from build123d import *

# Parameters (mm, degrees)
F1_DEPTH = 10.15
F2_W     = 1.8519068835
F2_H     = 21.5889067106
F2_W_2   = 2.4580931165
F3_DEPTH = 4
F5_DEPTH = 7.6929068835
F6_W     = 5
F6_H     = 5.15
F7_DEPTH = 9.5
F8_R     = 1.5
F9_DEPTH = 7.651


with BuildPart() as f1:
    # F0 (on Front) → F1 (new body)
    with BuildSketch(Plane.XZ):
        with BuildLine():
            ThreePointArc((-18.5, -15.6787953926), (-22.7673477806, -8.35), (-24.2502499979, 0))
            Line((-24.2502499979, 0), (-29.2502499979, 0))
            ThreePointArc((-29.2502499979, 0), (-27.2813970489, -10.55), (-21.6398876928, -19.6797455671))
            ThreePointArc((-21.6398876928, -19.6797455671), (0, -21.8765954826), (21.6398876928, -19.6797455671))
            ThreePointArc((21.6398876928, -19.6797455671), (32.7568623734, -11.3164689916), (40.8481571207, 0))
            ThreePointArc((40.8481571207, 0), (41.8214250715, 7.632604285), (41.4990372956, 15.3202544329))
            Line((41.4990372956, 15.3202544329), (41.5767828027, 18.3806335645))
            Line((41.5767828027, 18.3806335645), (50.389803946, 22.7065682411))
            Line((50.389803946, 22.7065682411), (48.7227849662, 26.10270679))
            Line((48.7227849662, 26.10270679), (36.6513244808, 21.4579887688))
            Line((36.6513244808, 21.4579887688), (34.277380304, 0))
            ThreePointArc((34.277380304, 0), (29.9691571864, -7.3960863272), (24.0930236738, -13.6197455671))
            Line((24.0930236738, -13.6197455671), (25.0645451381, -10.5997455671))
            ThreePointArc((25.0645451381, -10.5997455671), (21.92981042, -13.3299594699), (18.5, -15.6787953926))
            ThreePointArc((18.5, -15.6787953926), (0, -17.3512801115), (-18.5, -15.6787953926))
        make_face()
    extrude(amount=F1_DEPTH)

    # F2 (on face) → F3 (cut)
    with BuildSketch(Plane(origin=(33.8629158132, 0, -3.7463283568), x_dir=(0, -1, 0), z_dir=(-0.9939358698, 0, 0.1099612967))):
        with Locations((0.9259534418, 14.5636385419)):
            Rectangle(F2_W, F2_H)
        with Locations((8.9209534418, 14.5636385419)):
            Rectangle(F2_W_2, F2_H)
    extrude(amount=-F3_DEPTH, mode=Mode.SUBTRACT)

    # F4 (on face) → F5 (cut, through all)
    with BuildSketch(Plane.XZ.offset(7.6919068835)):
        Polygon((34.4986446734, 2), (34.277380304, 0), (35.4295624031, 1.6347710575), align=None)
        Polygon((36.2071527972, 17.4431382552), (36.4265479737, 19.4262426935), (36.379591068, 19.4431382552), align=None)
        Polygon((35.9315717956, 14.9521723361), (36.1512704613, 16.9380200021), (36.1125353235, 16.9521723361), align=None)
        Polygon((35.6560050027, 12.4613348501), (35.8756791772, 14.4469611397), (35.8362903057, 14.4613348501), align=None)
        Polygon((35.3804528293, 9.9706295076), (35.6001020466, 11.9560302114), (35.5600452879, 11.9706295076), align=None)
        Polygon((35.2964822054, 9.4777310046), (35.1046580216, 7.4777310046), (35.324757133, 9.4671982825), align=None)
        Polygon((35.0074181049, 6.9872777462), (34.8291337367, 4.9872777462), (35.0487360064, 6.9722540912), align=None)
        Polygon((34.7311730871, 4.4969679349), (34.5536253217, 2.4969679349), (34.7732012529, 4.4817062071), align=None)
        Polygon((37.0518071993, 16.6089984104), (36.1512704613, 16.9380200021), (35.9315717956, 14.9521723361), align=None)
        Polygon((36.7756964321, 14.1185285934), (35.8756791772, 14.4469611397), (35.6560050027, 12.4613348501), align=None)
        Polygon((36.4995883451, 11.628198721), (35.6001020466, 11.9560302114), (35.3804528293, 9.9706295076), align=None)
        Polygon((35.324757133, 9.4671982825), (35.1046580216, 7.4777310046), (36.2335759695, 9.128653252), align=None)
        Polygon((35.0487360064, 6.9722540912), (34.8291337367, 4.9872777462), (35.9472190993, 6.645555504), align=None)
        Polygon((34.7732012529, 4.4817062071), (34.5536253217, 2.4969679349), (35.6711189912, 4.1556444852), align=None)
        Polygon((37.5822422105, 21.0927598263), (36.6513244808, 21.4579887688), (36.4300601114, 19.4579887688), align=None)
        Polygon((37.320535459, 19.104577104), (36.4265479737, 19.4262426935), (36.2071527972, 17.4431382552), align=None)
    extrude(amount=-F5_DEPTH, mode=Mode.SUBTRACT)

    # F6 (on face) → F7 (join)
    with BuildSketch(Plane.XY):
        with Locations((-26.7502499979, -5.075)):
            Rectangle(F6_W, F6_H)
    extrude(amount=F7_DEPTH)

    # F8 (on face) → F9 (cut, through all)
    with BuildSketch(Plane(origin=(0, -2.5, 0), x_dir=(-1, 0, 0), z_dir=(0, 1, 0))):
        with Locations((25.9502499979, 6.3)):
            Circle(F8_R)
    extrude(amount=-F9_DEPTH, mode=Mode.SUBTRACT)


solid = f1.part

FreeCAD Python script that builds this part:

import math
import FreeCAD as App
import Part
import Sketcher
from FreeCAD import Vector

doc = App.newDocument("Part")
body = doc.addObject("PartDesign::Body", "Body")

# Sketch on XZ plane
sketch1 = body.newObject("Sketcher::SketchObject", "Sketch")
sketch1.AttachmentSupport = (doc.getObject("XZ_Plane"), [""])
sketch1.MapMode = "FlatFace"
sketch1.addGeometry(Part.ArcOfCircle(Part.Circle(Vector(0, 0, 0), Vector(0, 0, 1), 24.3), math.radians(180), math.radians(220)), False)
sketch1.addGeometry(Part.LineSegment(Vector(-24.3, 0, 0), Vector(-29.3, 0, 0)), False)
sketch1.addGeometry(Part.ArcOfCircle(Part.Circle(Vector(0, 0, 0), Vector(0, 0, 1), 29.3), math.radians(180), math.radians(222)), False)
sketch1.addGeometry(Part.ArcOfCircle(Part.Circle(Vector(0, 85.8, 0), Vector(0, 0, 1), 107.7), math.radians(-102), math.radians(-78)), False)
sketch1.addGeometry(Part.ArcOfCircle(Part.Circle(Vector(0, 20.7, 0), Vector(0, 0, 1), 45.8), math.radians(-62), math.radians(-27)), False)
sketch1.addGeometry(Part.ArcOfCircle(Part.Circle(Vector(-3.8, 9.6, 0), Vector(0, 0, 1), 45.7), math.radians(-12.1), math.radians(7.24)), False)
sketch1.addGeometry(Part.LineSegment(Vector(41.5, 15.3, 0), Vector(41.6, 18.4, 0)), False)
sketch1.addGeometry(Part.LineSegment(Vector(41.6, 18.4, 0), Vector(50.4, 22.7, 0)), False)
sketch1.addGeometry(Part.LineSegment(Vector(50.4, 22.7, 0), Vector(48.7, 26.1, 0)), False)
sketch1.addGeometry(Part.LineSegment(Vector(48.7, 26.1, 0), Vector(36.7, 21.5, 0)), False)
sketch1.addGeometry(Part.LineSegment(Vector(36.7, 21.5, 0), Vector(34.3, 0, 0)), False)
sketch1.addGeometry(Part.ArcOfCircle(Part.Circle(Vector(0, 15, 0), Vector(0, 0, 1), 37.4), math.radians(-50), math.radians(-24)), False)
sketch1.addGeometry(Part.LineSegment(Vector(24.1, -13.6, 0), Vector(25.1, -10.6, 0)), False)
sketch1.addGeometry(Part.ArcOfCircle(Part.Circle(Vector(0, 15, 0), Vector(0, 0, 1), 35.8), math.radians(-58.92), math.radians(-45.62)), False)
sketch1.addGeometry(Part.ArcOfCircle(Part.Circle(Vector(0, 85.8, 0), Vector(0, 0, 1), 103.2), math.radians(-100), math.radians(-80)), False)
sketch1.addConstraint(Sketcher.Constraint("Coincident", 0, 1, 1, 1))
sketch1.addConstraint(Sketcher.Constraint("Coincident", 1, 2, 2, 1))
sketch1.addConstraint(Sketcher.Constraint("Coincident", 2, 2, 3, 1))
sketch1.addConstraint(Sketcher.Constraint("Coincident", 3, 2, 4, 1))
sketch1.addConstraint(Sketcher.Constraint("Coincident", 4, 2, 5, 1))
sketch1.addConstraint(Sketcher.Constraint("Coincident", 5, 2, 6, 1))
sketch1.addConstraint(Sketcher.Constraint("Coincident", 6, 2, 7, 1))
sketch1.addConstraint(Sketcher.Constraint("Coincident", 7, 2, 8, 1))
sketch1.addConstraint(Sketcher.Constraint("Coincident", 8, 2, 9, 1))
sketch1.addConstraint(Sketcher.Constraint("Coincident", 9, 2, 10, 1))
sketch1.addConstraint(Sketcher.Constraint("Coincident", 10, 2, 11, 2))
sketch1.addConstraint(Sketcher.Constraint("Coincident", 11, 1, 12, 1))
sketch1.addConstraint(Sketcher.Constraint("Coincident", 12, 2, 13, 2))
sketch1.addConstraint(Sketcher.Constraint("Coincident", 13, 1, 14, 2))
sketch1.addConstraint(Sketcher.Constraint("Coincident", 14, 1, 0, 2))
sketch1.addConstraint(Sketcher.Constraint("Horizontal", 1))
sketch1.addConstraint(Sketcher.Constraint("Coincident", 0, 3, -1, 1))
sketch1.addConstraint(Sketcher.Constraint("Coincident", 2, 3, -1, 1))
sketch1.addConstraint(Sketcher.Constraint("Coincident", 13, 3, 11, 3))
sketch1.addConstraint(Sketcher.Constraint("Coincident", 14, 3, 3, 3))
sketch1.addConstraint(Sketcher.Constraint("Symmetric", 2, 2, 3, 2, -2))
sketch1.addConstraint(Sketcher.Constraint("PointOnObject", 4, 3, -2))
sketch1.addConstraint(Sketcher.Constraint("PointOnObject", 11, 3, -2))
sketch1.addConstraint(Sketcher.Constraint("PointOnObject", 0, 1, -1))
sketch1.addConstraint(Sketcher.Constraint("PointOnObject", 4, 2, -1))
sketch1.addConstraint(Sketcher.Constraint("PointOnObject", 10, 2, -1))
sketch1.addConstraint(Sketcher.Constraint("Perpendicular", 7, 8))
sketch1.addConstraint(Sketcher.Constraint("Horizontal", 13, 1, 14, 1))
sketch1.addConstraint(Sketcher.Constraint("DistanceX", 1, 2, 1, 1, 5.0))
sketch1.addConstraint(Sketcher.Constraint("DistanceY", 3, 2, 5, 2, 35.0))
sketch1.addConstraint(Sketcher.Constraint("DistanceX", -1, 1, 13, 1, 18.5))
sketch1.addConstraint(Sketcher.Constraint("Radius", 0, 24.25025))
sketch1.addConstraint(Sketcher.Constraint("Radius", 11, 37.42128))
sketch1.addConstraint(Sketcher.Constraint("Radius", 14, 103.154068))
sketch1.addConstraint(Sketcher.Constraint("DistanceY", 3, 2, 11, 1, 6.06))
sketch1.addConstraint(Sketcher.Constraint("DistanceY", 11, 1, 12, 2, 3.02))
sketch1.addConstraint(Sketcher.Constraint("Radius", 3, 107.679383))
sketch1.addConstraint(Sketcher.Constraint("Radius", 4, 45.773646))
sketch1.addConstraint(Sketcher.Constraint("Radius", 5, 45.652976))
sketch1.addConstraint(Sketcher.Constraint("Radius", 13, 35.836905))
sketch1.addConstraint(Sketcher.Constraint("Distance", 9, 12.934201))
sketch1.addConstraint(Sketcher.Constraint("DistanceY", -1, 1, 5, 3, 9.57042))
sketch1.addConstraint(Sketcher.Constraint("DistanceY", -1, 1, 7, 2, 22.706568))
sketch1.addConstraint(Sketcher.Constraint("DistanceY", -1, 1, 9, 2, 21.457989))
sketch1.addConstraint(Sketcher.Constraint("DistanceY", 5, 2, 6, 2, 3.060379))
sketch1.addConstraint(Sketcher.Constraint("DistanceX", 6, 2, 7, 2, 8.813021))
sketch1.addConstraint(Sketcher.Constraint("DistanceX", 8, 2, 7, 2, 1.667019))
sketch1.addConstraint(Sketcher.Constraint("Distance", 6, 3.061366))
pad1 = body.newObject("PartDesign::Pad", "Pad")
pad1.Profile = sketch1
pad1.Length = 10.15

# Sketch on an angled plane
sketch2 = body.newObject("Sketcher::SketchObject", "Sketch001")
sketch2.Placement = App.Placement(Vector(33.862916, 0, -3.746328), App.Rotation(Vector(0, -1, 0), Vector(0.109961297, 0, 0.99393587), Vector(-0.99393587, 0, 0.109961297), "ZXY"))
sketch2.addGeometry(Part.LineSegment(Vector(0, 25.4, 0), Vector(0, 3.8, 0)), False)
sketch2.addGeometry(Part.LineSegment(Vector(0, 3.8, 0), Vector(1.9, 3.8, 0)), False)
sketch2.addGeometry(Part.LineSegment(Vector(1.9, 3.8, 0), Vector(1.9, 25.4, 0)), False)
sketch2.addGeometry(Part.LineSegment(Vector(1.9, 25.4, 0), Vector(0, 25.4, 0)), False)
sketch2.addGeometry(Part.LineSegment(Vector(7.7, 25.4, 0), Vector(7.7, 3.8, 0)), False)
sketch2.addGeometry(Part.LineSegment(Vector(7.7, 3.8, 0), Vector(10.2, 3.8, 0)), False)
sketch2.addGeometry(Part.LineSegment(Vector(10.2, 3.8, 0), Vector(10.2, 25.4, 0)), False)
sketch2.addGeometry(Part.LineSegment(Vector(10.2, 25.4, 0), Vector(7.7, 25.4, 0)), False)
sketch2.addConstraint(Sketcher.Constraint("Coincident", 0, 2, 1, 1))
sketch2.addConstraint(Sketcher.Constraint("Coincident", 1, 2, 2, 1))
sketch2.addConstraint(Sketcher.Constraint("Coincident", 2, 2, 3, 1))
sketch2.addConstraint(Sketcher.Constraint("Coincident", 3, 2, 0, 1))
sketch2.addConstraint(Sketcher.Constraint("Coincident", 4, 2, 5, 1))
sketch2.addConstraint(Sketcher.Constraint("Coincident", 5, 2, 6, 1))
sketch2.addConstraint(Sketcher.Constraint("Coincident", 6, 2, 7, 1))
sketch2.addConstraint(Sketcher.Constraint("Coincident", 7, 2, 4, 1))
sketch2.addConstraint(Sketcher.Constraint("Vertical", 0))
sketch2.addConstraint(Sketcher.Constraint("Horizontal", 1))
sketch2.addConstraint(Sketcher.Constraint("Vertical", 2))
sketch2.addConstraint(Sketcher.Constraint("Horizontal", 3))
sketch2.addConstraint(Sketcher.Constraint("Vertical", 4))
sketch2.addConstraint(Sketcher.Constraint("Horizontal", 5))
sketch2.addConstraint(Sketcher.Constraint("Vertical", 6))
sketch2.addConstraint(Sketcher.Constraint("Horizontal", 7))
sketch2.addConstraint(Sketcher.Constraint("PointOnObject", 0, 2, -2))
sketch2.addConstraint(Sketcher.Constraint("Horizontal", 1, 2, 4, 2))
sketch2.addConstraint(Sketcher.Constraint("Horizontal", 3, 2, 6, 2))
sketch2.addConstraint(Sketcher.Constraint("DistanceX", -1, 1, 5, 2, 10.15))
sketch2.addConstraint(Sketcher.Constraint("DistanceX", 1, 2, 4, 2, 5.84))
sketch2.addConstraint(Sketcher.Constraint("DistanceX", 1, 1, 1, 2, 1.851907))
sketch2.addConstraint(Sketcher.Constraint("DistanceY", 0, 2, 0, 1, 21.588907))
sketch2.addConstraint(Sketcher.Constraint("DistanceY", -1, 1, 2, 2, 25.358092))
pocket1 = body.newObject("PartDesign::Pocket", "Pocket")
pocket1.Profile = sketch2
pocket1.Length = 4

# Sketch on XZ plane
sketch3 = body.newObject("Sketcher::SketchObject", "Sketch002")
sketch3.AttachmentSupport = (doc.getObject("XZ_Plane"), [""])
sketch3.MapMode = "FlatFace"
sketch3.AttachmentOffset = App.Placement(Vector(0, 0, 7.691907), App.Rotation())
sketch3.addGeometry(Part.LineSegment(Vector(34.498645, 2, 0), Vector(34.27738, 0, 0)), False)
sketch3.addGeometry(Part.LineSegment(Vector(34.27738, 0, 0), Vector(35.429562, 1.634771, 0)), False)
sketch3.addGeometry(Part.LineSegment(Vector(35.429562, 1.634771, 0), Vector(34.498645, 2, 0)), False)
sketch3.addGeometry(Part.LineSegment(Vector(36.426548, 19.426243, 0), Vector(36.379591, 19.443138, 0)), False)
sketch3.addGeometry(Part.LineSegment(Vector(36.379591, 19.443138, 0), Vector(36.207153, 17.443138, 0)), False)
sketch3.addGeometry(Part.LineSegment(Vector(36.207153, 17.443138, 0), Vector(37.320535, 19.104577, 0)), False)
sketch3.addGeometry(Part.LineSegment(Vector(37.320535, 19.104577, 0), Vector(36.426548, 19.426243, 0)), False)
sketch3.addGeometry(Part.LineSegment(Vector(36.15127, 16.93802, 0), Vector(36.112535, 16.952172, 0)), False)
sketch3.addGeometry(Part.LineSegment(Vector(36.112535, 16.952172, 0), Vector(35.931572, 14.952172, 0)), False)
sketch3.addGeometry(Part.LineSegment(Vector(35.931572, 14.952172, 0), Vector(37.051807, 16.608998, 0)), False)
sketch3.addGeometry(Part.LineSegment(Vector(37.051807, 16.608998, 0), Vector(36.15127, 16.93802, 0)), False)
sketch3.addGeometry(Part.LineSegment(Vector(35.875679, 14.446961, 0), Vector(35.83629, 14.461335, 0)), False)
sketch3.addGeometry(Part.LineSegment(Vector(35.83629, 14.461335, 0), Vector(35.656005, 12.461335, 0)), False)
sketch3.addGeometry(Part.LineSegment(Vector(35.656005, 12.461335, 0), Vector(36.775696, 14.118529, 0)), False)
sketch3.addGeometry(Part.LineSegment(Vector(36.775696, 14.118529, 0), Vector(35.875679, 14.446961, 0)), False)
sketch3.addGeometry(Part.LineSegment(Vector(35.600102, 11.95603, 0), Vector(35.560045, 11.97063, 0)), False)
sketch3.addGeometry(Part.LineSegment(Vector(35.560045, 11.97063, 0), Vector(35.380453, 9.97063, 0)), False)
sketch3.addGeometry(Part.LineSegment(Vector(35.380453, 9.97063, 0), Vector(36.499588, 11.628199, 0)), False)
sketch3.addGeometry(Part.LineSegment(Vector(36.499588, 11.628199, 0), Vector(35.600102, 11.95603, 0)), False)
sketch3.addGeometry(Part.LineSegment(Vector(35.296482, 9.477731, 0), Vector(35.104658, 7.477731, 0)), False)
sketch3.addGeometry(Part.LineSegment(Vector(35.104658, 7.477731, 0), Vector(36.233576, 9.128653, 0)), False)
sketch3.addGeometry(Part.LineSegment(Vector(36.233576, 9.128653, 0), Vector(35.324757, 9.467198, 0)), False)
sketch3.addGeometry(Part.LineSegment(Vector(35.324757, 9.467198, 0), Vector(35.296482, 9.477731, 0)), False)
sketch3.addGeometry(Part.LineSegment(Vector(35.007418, 6.987278, 0), Vector(34.829134, 4.987278, 0)), False)
sketch3.addGeometry(Part.LineSegment(Vector(34.829134, 4.987278, 0), Vector(35.947219, 6.645556, 0)), False)
sketch3.addGeometry(Part.LineSegment(Vector(35.947219, 6.645556, 0), Vector(35.048736, 6.972254, 0)), False)
sketch3.addGeometry(Part.LineSegment(Vector(35.048736, 6.972254, 0), Vector(35.007418, 6.987278, 0)), False)
sketch3.addGeometry(Part.LineSegment(Vector(34.731173, 4.496968, 0), Vector(34.553625, 2.496968, 0)), False)
sketch3.addGeometry(Part.LineSegment(Vector(34.553625, 2.496968, 0), Vector(35.671119, 4.155644, 0)), False)
sketch3.addGeometry(Part.LineSegment(Vector(35.671119, 4.155644, 0), Vector(34.773201, 4.481706, 0)), False)
sketch3.addGeometry(Part.LineSegment(Vector(34.773201, 4.481706, 0), Vector(34.731173, 4.496968, 0)), False)
sketch3.addGeometry(Part.LineSegment(Vector(37.582242, 21.09276, 0), Vector(36.651324, 21.457989, 0)), False)
sketch3.addGeometry(Part.LineSegment(Vector(36.651324, 21.457989, 0), Vector(36.43006, 19.457989, 0)), False)
sketch3.addGeometry(Part.LineSegment(Vector(36.43006, 19.457989, 0), Vector(37.582242, 21.09276, 0)), False)
sketch3.addConstraint(Sketcher.Constraint("Coincident", 0, 2, 1, 1))
sketch3.addConstraint(Sketcher.Constraint("Coincident", 1, 2, 2, 1))
sketch3.addConstraint(Sketcher.Constraint("Coincident", 2, 2, 0, 1))
sketch3.addConstraint(Sketcher.Constraint("Coincident", 3, 2, 4, 1))
sketch3.addConstraint(Sketcher.Constraint("Coincident", 4, 2, 5, 1))
sketch3.addConstraint(Sketcher.Constraint("Coincident", 5, 2, 6, 1))
sketch3.addConstraint(Sketcher.Constraint("Coincident", 6, 2, 3, 1))
sketch3.addConstraint(Sketcher.Constraint("Coincident", 7, 2, 8, 1))
sketch3.addConstraint(Sketcher.Constraint("Coincident", 8, 2, 9, 1))
sketch3.addConstraint(Sketcher.Constraint("Coincident", 9, 2, 10, 1))
sketch3.addConstraint(Sketcher.Constraint("Coincident", 10, 2, 7, 1))
sketch3.addConstraint(Sketcher.Constraint("Coincident", 11, 2, 12, 1))
sketch3.addConstraint(Sketcher.Constraint("Coincident", 12, 2, 13, 1))
sketch3.addConstraint(Sketcher.Constraint("Coincident", 13, 2, 14, 1))
sketch3.addConstraint(Sketcher.Constraint("Coincident", 14, 2, 11, 1))
sketch3.addConstraint(Sketcher.Constraint("Coincident", 15, 2, 16, 1))
sketch3.addConstraint(Sketcher.Constraint("Coincident", 16, 2, 17, 1))
sketch3.addConstraint(Sketcher.Constraint("Coincident", 17, 2, 18, 1))
sketch3.addConstraint(Sketcher.Constraint("Coincident", 18, 2, 15, 1))
sketch3.addConstraint(Sketcher.Constraint("Coincident", 19, 2, 20, 1))
sketch3.addConstraint(Sketcher.Constraint("Coincident", 20, 2, 21, 1))
sketch3.addConstraint(Sketcher.Constraint("Coincident", 21, 2, 22, 1))
sketch3.addConstraint(Sketcher.Constraint("Coincident", 22, 2, 19, 1))
sketch3.addConstraint(Sketcher.Constraint("Coincident", 23, 2, 24, 1))
sketch3.addConstraint(Sketcher.Constraint("Coincident", 24, 2, 25, 1))
sketch3.addConstraint(Sketcher.Constraint("Coincident", 25, 2, 26, 1))
sketch3.addConstraint(Sketcher.Constraint("Coincident", 26, 2, 23, 1))
sketch3.addConstraint(Sketcher.Constraint("Coincident", 27, 2, 28, 1))
sketch3.addConstraint(Sketcher.Constraint("Coincident", 28, 2, 29, 1))
sketch3.addConstraint(Sketcher.Constraint("Coincident", 29, 2, 30, 1))
sketch3.addConstraint(Sketcher.Constraint("Coincident", 30, 2, 27, 1))
sketch3.addConstraint(Sketcher.Constraint("Coincident", 31, 2, 32, 1))
sketch3.addConstraint(Sketcher.Constraint("Coincident", 32, 2, 33, 1))
sketch3.addConstraint(Sketcher.Constraint("Coincident", 33, 2, 31, 1))
sketch3.addConstraint(Sketcher.Constraint("PointOnObject", 0, 2, -1))
sketch3.addConstraint(Sketcher.Constraint("Distance", 1, 2.0))
sketch3.addConstraint(Sketcher.Constraint("Distance", 2, 1.0))
sketch3.addConstraint(Sketcher.Constraint("Distance", 5, 2.0))
sketch3.addConstraint(Sketcher.Constraint("Distance", 9, 2.0))
sketch3.addConstraint(Sketcher.Constraint("Distance", 13, 2.0))
sketch3.addConstraint(Sketcher.Constraint("Distance", 17, 2.0))
sketch3.addConstraint(Sketcher.Constraint("Distance", 20, 2.0))
sketch3.addConstraint(Sketcher.Constraint("Distance", 24, 2.0))
sketch3.addConstraint(Sketcher.Constraint("Distance", 28, 2.0))
sketch3.addConstraint(Sketcher.Constraint("Distance", 31, 1.0))
sketch3.addConstraint(Sketcher.Constraint("Distance", 33, 2.0))
sketch3.addConstraint(Sketcher.Constraint("DistanceY", -1, 1, 2, 2, 2.0))
sketch3.addConstraint(Sketcher.Constraint("DistanceY", 4, 2, 3, 2, 2.0))
sketch3.addConstraint(Sketcher.Constraint("DistanceY", 8, 2, 7, 2, 2.0))
sketch3.addConstraint(Sketcher.Constraint("DistanceY", 12, 2, 11, 2, 2.0))
sketch3.addConstraint(Sketcher.Constraint("DistanceY", 16, 2, 15, 2, 2.0))
sketch3.addConstraint(Sketcher.Constraint("DistanceY", 19, 2, 22, 2, 2.0))
sketch3.addConstraint(Sketcher.Constraint("DistanceY", 23, 2, 26, 2, 2.0))
sketch3.addConstraint(Sketcher.Constraint("DistanceY", 27, 2, 30, 2, 2.0))
sketch3.addConstraint(Sketcher.Constraint("DistanceY", 32, 2, 31, 2, 2.0))
sketch3.addConstraint(Sketcher.Constraint("DistanceY", -1, 1, 9, 2, 16.608998))
sketch3.addConstraint(Sketcher.Constraint("DistanceX", 7, 2, 5, 2, 1.208))
sketch3.addConstraint(Sketcher.Constraint("DistanceY", 21, 2, 17, 2, 2.161))
sketch3.addConstraint(Sketcher.Constraint("DistanceY", -1, 1, 17, 2, 11.628199))
sketch3.addConstraint(Sketcher.Constraint("DistanceX", -1, 1, 29, 2, 34.773201))
sketch3.addConstraint(Sketcher.Constraint("DistanceX", 8, 2, 10, 2, 0.219699))
sketch3.addConstraint(Sketcher.Constraint("DistanceY", 15, 2, 13, 2, 2.147899))
sketch3.addConstraint(Sketcher.Constraint("DistanceY", 18, 2, 15, 2, 0.014599))
sketch3.addConstraint(Sketcher.Constraint("DistanceY", 19, 2, 16, 2, 2.492899))
sketch3.addConstraint(Sketcher.Constraint("DistanceX", 19, 2, 21, 2, 0.220099))
sketch3.addConstraint(Sketcher.Constraint("DistanceY", 24, 2, 25, 2, 0.326699))
sketch3.addConstraint(Sketcher.Constraint("DistanceY", 25, 2, 20, 2, 2.156399))
sketch3.addConstraint(Sketcher.Constraint("DistanceX", 26, 2, 24, 2, 0.939801))
sketch3.addConstraint(Sketcher.Constraint("DistanceX", 28, 2, 24, 2, 0.2761))
sketch3.addConstraint(Sketcher.Constraint("Distance", 4, 2.00742))
sketch3.addConstraint(Sketcher.Constraint("Distance", 7, 0.04124))
sketch3.addConstraint(Sketcher.Constraint("Distance", 8, 2.00817))
sketch3.addConstraint(Sketcher.Constraint("Distance", 10, 0.95876))
sketch3.addConstraint(Sketcher.Constraint("Distance", 11, 0.04193))
sketch3.addConstraint(Sketcher.Constraint("Distance", 12, 2.008109))
sketch3.addConstraint(Sketcher.Constraint("Distance", 14, 0.95807))
sketch3.addConstraint(Sketcher.Constraint("Distance", 19, 2.009178))
sketch3.addConstraint(Sketcher.Constraint("Distance", 23, 2.007931))
sketch3.addConstraint(Sketcher.Constraint("DistanceX", -1, 1, 0, 2, 34.27738))
sketch3.addConstraint(Sketcher.Constraint("DistanceY", -1, 1, 1, 2, 1.634771))
sketch3.addConstraint(Sketcher.Constraint("DistanceX", -1, 1, 3, 2, 36.379591))
sketch3.addConstraint(Sketcher.Constraint("DistanceY", -1, 1, 3, 2, 19.443138))
sketch3.addConstraint(Sketcher.Constraint("DistanceX", -1, 1, 8, 2, 35.931572))
sketch3.addConstraint(Sketcher.Constraint("DistanceX", -1, 1, 11, 2, 35.83629))
sketch3.addConstraint(Sketcher.Constraint("DistanceY", -1, 1, 13, 2, 14.118529))
sketch3.addConstraint(Sketcher.Constraint("DistanceX", -1, 1, 14, 2, 35.875679))
sketch3.addConstraint(Sketcher.Constraint("DistanceX", -1, 1, 17, 2, 36.499588))
sketch3.addConstraint(Sketcher.Constraint("DistanceX", -1, 1, 19, 2, 35.104658))
sketch3.addConstraint(Sketcher.Constraint("DistanceX", -1, 1, 24, 2, 35.947219))
sketch3.addConstraint(Sketcher.Constraint("DistanceY", -1, 1, 31, 2, 21.457989))
sketch3.addConstraint(Sketcher.Constraint("DistanceX", -1, 1, 32, 2, 36.43006))
sketch3.addConstraint(Sketcher.Constraint("DistanceY", -1, 1, 33, 2, 21.09276))
sketch3.addConstraint(Sketcher.Constraint("DistanceY", 1, 2, 6, 2, 17.791472))
sketch3.addConstraint(Sketcher.Constraint("DistanceX", 6, 2, 9, 2, 0.625259))
sketch3.addConstraint(Sketcher.Constraint("DistanceX", 15, 2, 12, 2, 0.09596))
sketch3.addConstraint(Sketcher.Constraint("DistanceX", 16, 2, 18, 2, 0.219649))
sketch3.addConstraint(Sketcher.Constraint("DistanceX", 15, 2, 20, 2, 0.673531))
sketch3.addConstraint(Sketcher.Constraint("DistanceX", 25, 2, 20, 2, 1.18484))
sketch3.addConstraint(Sketcher.Constraint("DistanceX", 2, 2, 27, 2, 0.054981))
sketch3.addConstraint(Sketcher.Constraint("DistanceY", 27, 2, 23, 2, 2.49031))
sketch3.addConstraint(Sketcher.Constraint("DistanceY", 29, 2, 23, 2, 0.505572))
sketch3.addConstraint(Sketcher.Constraint("DistanceX", 30, 2, 29, 2, 0.042028))
pocket2 = body.newObject("PartDesign::Pocket", "Pocket001")
pocket2.Profile = sketch3
pocket2.Type = "ThroughAll"

# Sketch on XY plane
sketch4 = body.newObject("Sketcher::SketchObject", "Sketch003")
sketch4.AttachmentSupport = (doc.getObject("XY_Plane"), [""])
sketch4.MapMode = "FlatFace"
sketch4.addGeometry(Part.LineSegment(Vector(-29, -2, 0), Vector(-29, -8, 0)), False)
sketch4.addGeometry(Part.LineSegment(Vector(-29, -8, 0), Vector(-24, -8, 0)), False)
sketch4.addGeometry(Part.LineSegment(Vector(-24, -8, 0), Vector(-24, -2, 0)), False)
sketch4.addGeometry(Part.LineSegment(Vector(-24, -2, 0), Vector(-29, -2, 0)), False)
sketch4.addConstraint(Sketcher.Constraint("Coincident", 0, 2, 1, 1))
sketch4.addConstraint(Sketcher.Constraint("Coincident", 1, 2, 2, 1))
sketch4.addConstraint(Sketcher.Constraint("Coincident", 2, 2, 3, 1))
sketch4.addConstraint(Sketcher.Constraint("Coincident", 3, 2, 0, 1))
sketch4.addConstraint(Sketcher.Constraint("Vertical", 0))
sketch4.addConstraint(Sketcher.Constraint("Horizontal", 1))
sketch4.addConstraint(Sketcher.Constraint("Vertical", 2))
sketch4.addConstraint(Sketcher.Constraint("Horizontal", 3))
sketch4.addConstraint(Sketcher.Constraint("DistanceX", 1, 1, 1, 2, 5.0))
sketch4.addConstraint(Sketcher.Constraint("DistanceY", 0, 2, 0, 1, 5.15))
sketch4.addConstraint(Sketcher.Constraint("DistanceY", 2, 2, -1, 1, 2.5))
sketch4.addConstraint(Sketcher.Constraint("DistanceX", 0, 2, -1, 1, 29.25025))
pad2 = body.newObject("PartDesign::Pad", "Pad001")
pad2.Profile = sketch4
pad2.Length = 9.5

# Sketch on XZ plane
sketch5 = body.newObject("Sketcher::SketchObject", "Sketch004")
sketch5.AttachmentSupport = (doc.getObject("XZ_Plane"), [""])
sketch5.MapMode = "FlatFace"
sketch5.AttachmentOffset = App.Placement(Vector(0, 0, 2.5), App.Rotation())
sketch5.addGeometry(Part.Circle(Vector(-26, 6.3, 0), Vector(0, 0, 1), 1.5), False)
sketch5.addConstraint(Sketcher.Constraint("Diameter", 0, 3.0))
sketch5.addConstraint(Sketcher.Constraint("DistanceY", -1, 1, 0, 3, 6.3))
sketch5.addConstraint(Sketcher.Constraint("DistanceX", 0, 3, -1, 1, 25.95025))
pocket3 = body.newObject("PartDesign::Pocket", "Pocket002")
pocket3.Profile = sketch5
pocket3.Type = "ThroughAll"
pocket3.Reversed = True

doc.recompute()
